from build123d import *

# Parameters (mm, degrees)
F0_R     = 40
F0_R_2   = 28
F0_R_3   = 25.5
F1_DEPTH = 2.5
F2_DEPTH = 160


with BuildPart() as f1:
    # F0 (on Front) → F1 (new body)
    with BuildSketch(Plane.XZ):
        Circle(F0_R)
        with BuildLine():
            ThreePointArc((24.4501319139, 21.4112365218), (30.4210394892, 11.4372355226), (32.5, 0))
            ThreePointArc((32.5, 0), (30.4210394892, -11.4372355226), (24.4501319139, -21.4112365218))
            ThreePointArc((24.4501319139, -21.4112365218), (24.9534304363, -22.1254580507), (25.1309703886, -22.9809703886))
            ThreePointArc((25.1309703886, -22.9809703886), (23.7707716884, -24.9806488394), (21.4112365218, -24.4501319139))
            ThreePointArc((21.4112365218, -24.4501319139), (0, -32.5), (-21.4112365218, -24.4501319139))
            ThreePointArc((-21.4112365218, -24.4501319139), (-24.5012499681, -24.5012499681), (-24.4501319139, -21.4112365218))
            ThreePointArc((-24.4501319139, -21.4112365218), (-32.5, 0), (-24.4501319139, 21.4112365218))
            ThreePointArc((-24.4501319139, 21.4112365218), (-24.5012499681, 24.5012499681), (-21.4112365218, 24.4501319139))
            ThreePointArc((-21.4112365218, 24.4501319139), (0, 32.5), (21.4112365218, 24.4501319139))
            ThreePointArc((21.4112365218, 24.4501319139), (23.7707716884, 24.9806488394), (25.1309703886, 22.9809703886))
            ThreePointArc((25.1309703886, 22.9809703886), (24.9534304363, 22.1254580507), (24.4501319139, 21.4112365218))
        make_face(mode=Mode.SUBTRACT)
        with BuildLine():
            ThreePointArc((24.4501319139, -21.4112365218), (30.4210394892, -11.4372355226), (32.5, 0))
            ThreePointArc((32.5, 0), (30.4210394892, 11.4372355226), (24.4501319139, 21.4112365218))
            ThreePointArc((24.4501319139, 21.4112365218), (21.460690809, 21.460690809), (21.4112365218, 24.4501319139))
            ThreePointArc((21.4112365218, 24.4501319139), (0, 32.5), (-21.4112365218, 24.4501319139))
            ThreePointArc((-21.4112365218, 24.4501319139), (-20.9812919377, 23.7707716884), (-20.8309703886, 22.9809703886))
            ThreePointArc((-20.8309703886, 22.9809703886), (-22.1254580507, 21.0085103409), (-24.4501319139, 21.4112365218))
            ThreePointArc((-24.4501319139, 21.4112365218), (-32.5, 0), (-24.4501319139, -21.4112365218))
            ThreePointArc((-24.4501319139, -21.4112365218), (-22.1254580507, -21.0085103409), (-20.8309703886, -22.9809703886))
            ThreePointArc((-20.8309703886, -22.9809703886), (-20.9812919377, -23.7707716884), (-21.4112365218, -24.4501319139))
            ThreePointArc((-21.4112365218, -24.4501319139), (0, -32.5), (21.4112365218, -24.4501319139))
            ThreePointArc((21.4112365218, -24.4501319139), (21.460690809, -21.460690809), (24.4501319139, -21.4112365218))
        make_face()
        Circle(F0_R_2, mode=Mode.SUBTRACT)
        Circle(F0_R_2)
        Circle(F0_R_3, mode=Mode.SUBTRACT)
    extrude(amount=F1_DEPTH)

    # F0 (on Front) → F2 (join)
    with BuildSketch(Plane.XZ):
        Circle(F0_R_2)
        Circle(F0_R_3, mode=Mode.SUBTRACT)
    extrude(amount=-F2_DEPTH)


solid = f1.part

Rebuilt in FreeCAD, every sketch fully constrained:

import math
import FreeCAD as App
import Part
import Sketcher

V = App.Vector

doc = App.newDocument("Part")
params = doc.addObject("Spreadsheet::Sheet", "Params")
for row, (alias, value) in enumerate([
    ("sketch1_diameter", "80 mm"),
    ("sketch1_diameter2", "51 mm"),
    ("sketch1_radius", "2.15 mm"),
    ("pad1_length", "2.5 mm"),
    ("sketch2_diameter", "56 mm"),
    ("sketch2_diameter2", "51 mm"),
    ("pad2_length", "160 mm"),
], start=1):
    params.set(f"A{row}", alias)
    params.set(f"B{row}", "=" + value)
    params.setAlias(f"B{row}", alias)

body = doc.addObject("PartDesign::Body", "Body")

# Sketch on XZ plane
sketch1 = doc.addObject("Sketcher::SketchObject", "Sketch")
body.addObject(sketch1)
sketch1.AttachmentSupport = (doc.XZ_Plane, [""])
sketch1.MapMode = "FlatFace"
sketch1.addGeometry([
    Part.Circle(V(0, 0, 0), V(0, 0, 1), 40),  # 0
    Part.ArcOfCircle(Part.Circle(V(-23, -23, 0), V(0, 0, 1), 2.1), math.radians(133), math.radians(317)),  # 1
    Part.ArcOfCircle(Part.Circle(V(-23, -23, 0), V(0, 0, 1), 2.1), math.radians(0), math.radians(133)),  # 2
    Part.ArcOfCircle(Part.Circle(V(-23, -23, 0), V(0, 0, 1), 2.1), math.radians(-43), math.radians(0)),  # 3
    Part.ArcOfCircle(Part.Circle(V(23, -23, 0), V(0, 0, 1), 2.1), math.radians(-137), math.radians(47)),  # 4
    Part.ArcOfCircle(Part.Circle(V(23, -23, 0), V(0, 0, 1), 2.1), math.radians(47), math.radians(223)),  # 5
    Part.ArcOfCircle(Part.Circle(V(-23, 23, 0), V(0, 0, 1), 2.1), math.radians(43), math.radians(227)),  # 6
    Part.ArcOfCircle(Part.Circle(V(-23, 23, 0), V(0, 0, 1), 2.1), math.radians(0), math.radians(43)),  # 7
    Part.ArcOfCircle(Part.Circle(V(-23, 23, 0), V(0, 0, 1), 2.1), math.radians(-133), math.radians(0)),  # 8
    Part.Circle(V(0, 0, 0), V(0, 0, 1), 25.5),  # 9
    Part.ArcOfCircle(Part.Circle(V(23, 23, 0), V(0, 0, 1), 2.1), math.radians(-47), math.radians(137)),  # 10
    Part.ArcOfCircle(Part.Circle(V(23, 23, 0), V(0, 0, 1), 2.1), math.radians(137), math.radians(313)),  # 11
], False)
sketch1.addConstraint([
    Sketcher.Constraint("Tangent", 1, 1, 2, 2),
    Sketcher.Constraint("Tangent", 2, 1, 3, 2),
    Sketcher.Constraint("Tangent", 3, 1, 1, 2),
    Sketcher.Constraint("Tangent", 4, 1, 5, 2),
    Sketcher.Constraint("Coincident", 5, 1, 4, 2),
    Sketcher.Constraint("Tangent", 6, 1, 7, 2),
    Sketcher.Constraint("Tangent", 7, 1, 8, 2),
    Sketcher.Constraint("Tangent", 8, 1, 6, 2),
    Sketcher.Constraint("Tangent", 10, 1, 11, 2),
    Sketcher.Constraint("Coincident", 11, 1, 10, 2),
    Sketcher.Constraint("Coincident", 0, 3, -1, 1),
    Sketcher.Constraint("Coincident", 9, 3, -1, 1),
    Sketcher.Constraint("Equal", 3, 4),
    Sketcher.Constraint("Equal", 5, 6),
    Sketcher.Constraint("Equal", 8, 10),
    Sketcher.Constraint("Symmetric", 4, 3, 6, 3, -1, 1),
    Sketcher.Constraint("Symmetric", 1, 3, 10, 3, -1, 1),
    Sketcher.Constraint("Symmetric", 1, 3, 4, 3, -2),
    Sketcher.Constraint("Horizontal", 5, 3, 2, 1),
    Sketcher.Constraint("Horizontal", 3, 1, 4, 1),
    Sketcher.Constraint("Horizontal", 1, 1, 5, 1),
    Sketcher.Constraint("Horizontal", 11, 3, 7, 1),
    Sketcher.Constraint("Horizontal", 8, 1, 10, 1),
    Sketcher.Constraint("Horizontal", 6, 1, 11, 1),
    Sketcher.Constraint("Vertical", 3, 1, 6, 1),
    Sketcher.Constraint("Vertical", 1, 1, 8, 1),
    Sketcher.Constraint("Diameter", 0, 80.0),
    Sketcher.Constraint("Diameter", 9, 51.0),
    Sketcher.Constraint("Radius", 1, 2.15),
    Sketcher.Constraint("DistanceX", 1, 3, -1, 1, 22.98097),
    Sketcher.Constraint("DistanceY", 1, 3, -1, 1, 22.98097),
    Sketcher.Constraint("DistanceX", 1, 1, -1, 1, 24.450132),
    Sketcher.Constraint("DistanceY", 3, 1, -1, 1, 24.450132),
])
sketch1.setExpression("Constraints[26]", "Params.sketch1_diameter")
sketch1.setExpression("Constraints[27]", "Params.sketch1_diameter2")
sketch1.setExpression("Constraints[28]", "Params.sketch1_radius")
pad1 = doc.addObject("PartDesign::Pad", "Pad")
body.addObject(pad1)
pad1.Profile = sketch1
pad1.setExpression("Length", "Params.pad1_length")

# Sketch on XZ plane
sketch2 = doc.addObject("Sketcher::SketchObject", "Sketch001")
body.addObject(sketch2)
sketch2.AttachmentSupport = (doc.XZ_Plane, [""])
sketch2.MapMode = "FlatFace"
sketch2.addGeometry([
    Part.Circle(V(0, 0, 0), V(0, 0, 1), 28),
    Part.Circle(V(0, 0, 0), V(0, 0, 1), 26),
], False)
sketch2.addConstraint([
    Sketcher.Constraint("Coincident", 0, 3, -1, 1),
    Sketcher.Constraint("Coincident", 1, 3, -1, 1),
    Sketcher.Constraint("Diameter", 0, 56.0),
    Sketcher.Constraint("Diameter", 1, 51.0),
])
sketch2.setExpression("Constraints[2]", "Params.sketch2_diameter")
sketch2.setExpression("Constraints[3]", "Params.sketch2_diameter2")
pad2 = doc.addObject("PartDesign::Pad", "Pad001")
body.addObject(pad2)
pad2.Profile = sketch2
pad2.setExpression("Length", "Params.pad2_length")
pad2.Reversed = True

doc.recompute()
